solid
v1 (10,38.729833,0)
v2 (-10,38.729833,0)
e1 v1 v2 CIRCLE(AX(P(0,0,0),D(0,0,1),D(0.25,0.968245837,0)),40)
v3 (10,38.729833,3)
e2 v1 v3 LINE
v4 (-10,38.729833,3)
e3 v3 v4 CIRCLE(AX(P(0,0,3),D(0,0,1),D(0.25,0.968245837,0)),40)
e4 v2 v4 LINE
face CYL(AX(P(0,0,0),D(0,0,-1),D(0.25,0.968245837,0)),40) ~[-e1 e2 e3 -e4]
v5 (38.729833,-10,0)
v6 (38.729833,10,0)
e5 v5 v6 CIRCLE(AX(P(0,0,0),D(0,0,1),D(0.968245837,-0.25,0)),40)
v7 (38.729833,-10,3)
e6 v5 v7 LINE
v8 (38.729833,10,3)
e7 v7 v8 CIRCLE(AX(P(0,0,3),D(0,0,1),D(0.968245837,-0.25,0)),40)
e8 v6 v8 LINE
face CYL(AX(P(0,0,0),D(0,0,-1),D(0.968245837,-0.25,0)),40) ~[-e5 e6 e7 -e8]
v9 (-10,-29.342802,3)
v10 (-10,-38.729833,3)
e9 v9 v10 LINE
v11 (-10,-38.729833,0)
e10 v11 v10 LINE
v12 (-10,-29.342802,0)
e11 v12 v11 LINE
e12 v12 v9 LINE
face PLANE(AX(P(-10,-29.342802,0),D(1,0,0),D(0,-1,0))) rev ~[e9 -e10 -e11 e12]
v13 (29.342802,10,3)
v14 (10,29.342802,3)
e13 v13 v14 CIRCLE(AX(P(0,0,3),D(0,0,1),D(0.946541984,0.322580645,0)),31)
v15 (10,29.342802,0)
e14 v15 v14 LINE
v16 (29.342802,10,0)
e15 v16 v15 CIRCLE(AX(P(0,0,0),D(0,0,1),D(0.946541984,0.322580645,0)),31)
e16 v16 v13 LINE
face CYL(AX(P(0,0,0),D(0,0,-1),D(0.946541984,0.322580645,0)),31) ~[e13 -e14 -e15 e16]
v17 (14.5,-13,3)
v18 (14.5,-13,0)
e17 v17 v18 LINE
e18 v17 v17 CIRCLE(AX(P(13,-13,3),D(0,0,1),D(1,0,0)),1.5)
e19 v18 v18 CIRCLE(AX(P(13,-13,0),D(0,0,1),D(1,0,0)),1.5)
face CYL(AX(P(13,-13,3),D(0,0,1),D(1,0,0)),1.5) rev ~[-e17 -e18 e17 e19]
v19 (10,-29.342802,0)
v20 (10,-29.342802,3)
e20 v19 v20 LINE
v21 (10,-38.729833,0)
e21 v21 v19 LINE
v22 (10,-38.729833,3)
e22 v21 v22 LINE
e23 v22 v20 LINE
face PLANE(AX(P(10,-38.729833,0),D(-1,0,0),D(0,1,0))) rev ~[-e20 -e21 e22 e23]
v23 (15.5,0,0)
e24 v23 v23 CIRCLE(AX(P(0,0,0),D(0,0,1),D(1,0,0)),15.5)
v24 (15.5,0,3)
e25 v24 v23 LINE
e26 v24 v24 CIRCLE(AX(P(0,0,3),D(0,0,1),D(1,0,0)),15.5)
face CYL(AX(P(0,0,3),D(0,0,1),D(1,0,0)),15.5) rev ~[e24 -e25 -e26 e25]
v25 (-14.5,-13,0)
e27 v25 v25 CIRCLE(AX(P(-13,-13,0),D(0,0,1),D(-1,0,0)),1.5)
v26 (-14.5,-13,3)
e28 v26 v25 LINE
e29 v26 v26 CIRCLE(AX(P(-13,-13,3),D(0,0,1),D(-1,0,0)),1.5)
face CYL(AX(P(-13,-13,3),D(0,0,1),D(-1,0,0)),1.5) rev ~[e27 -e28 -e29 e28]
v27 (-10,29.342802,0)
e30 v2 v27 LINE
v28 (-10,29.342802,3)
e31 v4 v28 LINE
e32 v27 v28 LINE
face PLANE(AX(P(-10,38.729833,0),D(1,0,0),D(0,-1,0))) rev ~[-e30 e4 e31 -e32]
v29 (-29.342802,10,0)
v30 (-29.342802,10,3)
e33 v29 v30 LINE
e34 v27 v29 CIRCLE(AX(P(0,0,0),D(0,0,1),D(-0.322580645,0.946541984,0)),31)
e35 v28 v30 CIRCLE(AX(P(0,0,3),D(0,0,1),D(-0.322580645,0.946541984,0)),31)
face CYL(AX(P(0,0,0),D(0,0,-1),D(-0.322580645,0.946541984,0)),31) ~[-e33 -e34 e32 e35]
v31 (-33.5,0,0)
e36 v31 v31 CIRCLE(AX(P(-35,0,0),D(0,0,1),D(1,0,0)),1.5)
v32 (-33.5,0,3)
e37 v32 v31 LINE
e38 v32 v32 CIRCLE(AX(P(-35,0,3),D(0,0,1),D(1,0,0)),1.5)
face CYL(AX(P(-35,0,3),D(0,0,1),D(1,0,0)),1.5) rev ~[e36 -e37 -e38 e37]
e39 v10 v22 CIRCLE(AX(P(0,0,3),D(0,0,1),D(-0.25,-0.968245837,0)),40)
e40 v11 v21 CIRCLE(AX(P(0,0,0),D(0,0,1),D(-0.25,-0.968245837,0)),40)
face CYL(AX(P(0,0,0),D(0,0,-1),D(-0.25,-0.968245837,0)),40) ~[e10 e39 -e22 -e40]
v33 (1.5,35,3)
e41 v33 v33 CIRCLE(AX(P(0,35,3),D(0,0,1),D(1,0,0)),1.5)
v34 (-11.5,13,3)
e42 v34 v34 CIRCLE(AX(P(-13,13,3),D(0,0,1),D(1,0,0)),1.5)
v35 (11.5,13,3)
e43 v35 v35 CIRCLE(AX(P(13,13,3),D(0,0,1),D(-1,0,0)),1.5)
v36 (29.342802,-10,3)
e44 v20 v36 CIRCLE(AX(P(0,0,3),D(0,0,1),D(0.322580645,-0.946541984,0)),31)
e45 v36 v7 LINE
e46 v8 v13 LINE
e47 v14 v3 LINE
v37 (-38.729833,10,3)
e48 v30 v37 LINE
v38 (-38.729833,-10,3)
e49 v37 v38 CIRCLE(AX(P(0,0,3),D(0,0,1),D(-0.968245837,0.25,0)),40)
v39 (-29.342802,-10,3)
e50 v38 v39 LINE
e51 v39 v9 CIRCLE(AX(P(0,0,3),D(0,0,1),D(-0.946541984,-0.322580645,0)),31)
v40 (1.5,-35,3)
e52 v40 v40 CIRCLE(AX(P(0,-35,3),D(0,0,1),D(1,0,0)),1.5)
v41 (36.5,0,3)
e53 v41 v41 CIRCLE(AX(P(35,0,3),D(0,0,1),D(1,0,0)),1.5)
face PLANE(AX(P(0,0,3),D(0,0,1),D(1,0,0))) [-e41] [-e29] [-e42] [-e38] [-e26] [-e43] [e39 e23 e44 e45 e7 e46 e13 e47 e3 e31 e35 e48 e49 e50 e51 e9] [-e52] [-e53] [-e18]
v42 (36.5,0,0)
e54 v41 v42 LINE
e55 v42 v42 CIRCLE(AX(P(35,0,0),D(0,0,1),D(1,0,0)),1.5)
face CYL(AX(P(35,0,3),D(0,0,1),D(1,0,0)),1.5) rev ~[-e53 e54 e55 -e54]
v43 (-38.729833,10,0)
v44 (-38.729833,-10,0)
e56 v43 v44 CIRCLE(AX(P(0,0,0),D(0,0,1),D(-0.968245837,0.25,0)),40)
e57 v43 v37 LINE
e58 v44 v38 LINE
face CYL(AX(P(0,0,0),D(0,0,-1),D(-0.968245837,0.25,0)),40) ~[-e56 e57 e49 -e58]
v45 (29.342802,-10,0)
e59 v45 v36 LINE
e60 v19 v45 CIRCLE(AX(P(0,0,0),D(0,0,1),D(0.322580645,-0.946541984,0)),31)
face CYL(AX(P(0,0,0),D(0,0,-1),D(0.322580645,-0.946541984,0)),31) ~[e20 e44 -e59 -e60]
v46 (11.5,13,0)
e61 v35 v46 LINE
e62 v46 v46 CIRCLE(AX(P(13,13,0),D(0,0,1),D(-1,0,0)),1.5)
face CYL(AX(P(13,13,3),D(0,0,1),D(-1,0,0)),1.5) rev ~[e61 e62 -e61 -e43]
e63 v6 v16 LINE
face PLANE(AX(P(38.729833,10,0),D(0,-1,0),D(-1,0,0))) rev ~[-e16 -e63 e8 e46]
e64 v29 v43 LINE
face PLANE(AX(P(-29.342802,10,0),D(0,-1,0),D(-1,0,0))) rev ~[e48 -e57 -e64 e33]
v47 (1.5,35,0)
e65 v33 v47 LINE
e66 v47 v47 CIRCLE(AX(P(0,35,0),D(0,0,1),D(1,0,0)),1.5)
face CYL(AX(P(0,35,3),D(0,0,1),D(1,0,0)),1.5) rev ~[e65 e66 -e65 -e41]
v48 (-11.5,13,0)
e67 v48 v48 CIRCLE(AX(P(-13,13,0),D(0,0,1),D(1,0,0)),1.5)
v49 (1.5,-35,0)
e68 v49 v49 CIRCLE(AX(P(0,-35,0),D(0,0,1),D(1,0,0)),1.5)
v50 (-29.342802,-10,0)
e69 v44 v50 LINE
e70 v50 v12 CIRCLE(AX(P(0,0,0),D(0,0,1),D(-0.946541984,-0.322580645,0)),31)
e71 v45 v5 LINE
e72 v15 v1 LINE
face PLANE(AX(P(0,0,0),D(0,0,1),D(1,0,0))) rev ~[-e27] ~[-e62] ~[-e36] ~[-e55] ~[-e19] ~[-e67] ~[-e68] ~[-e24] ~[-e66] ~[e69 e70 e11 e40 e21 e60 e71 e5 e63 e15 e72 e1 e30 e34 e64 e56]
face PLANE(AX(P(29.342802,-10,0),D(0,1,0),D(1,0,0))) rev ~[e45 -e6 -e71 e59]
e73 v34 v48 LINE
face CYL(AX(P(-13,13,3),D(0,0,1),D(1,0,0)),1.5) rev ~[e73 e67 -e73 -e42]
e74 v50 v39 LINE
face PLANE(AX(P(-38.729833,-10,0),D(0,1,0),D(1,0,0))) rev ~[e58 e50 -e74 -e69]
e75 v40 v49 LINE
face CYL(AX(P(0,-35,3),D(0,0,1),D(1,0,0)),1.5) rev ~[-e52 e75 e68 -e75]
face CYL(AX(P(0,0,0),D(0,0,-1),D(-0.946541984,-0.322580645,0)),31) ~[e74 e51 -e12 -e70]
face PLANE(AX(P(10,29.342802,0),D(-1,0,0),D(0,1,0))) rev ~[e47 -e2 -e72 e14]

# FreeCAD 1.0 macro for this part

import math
import FreeCAD as App
import Part
import Sketcher
Q = App.Units.Quantity

doc = App.newDocument("Part")
body = doc.addObject("PartDesign::Body", "Body")

sketch1 = body.newObject("Sketcher::SketchObject", "Sketch")
sketch1.AttachmentSupport = (doc.getObject("XY_Plane"), [""])
sketch1.MapMode = "FlatFace"
sketch1.addGeometry([
    Part.LineSegment(App.Vector(-10, -29, 0), App.Vector(-10, -39, 0)),
    Part.ArcOfCircle(Part.Circle(App.Vector(0, 0, 0), App.Vector(0, 0, 1), 40), math.radians(-104), math.radians(-76)),
    Part.LineSegment(App.Vector(10, -39, 0), App.Vector(10, -29, 0)),
    Part.ArcOfCircle(Part.Circle(App.Vector(0, 0, 0), App.Vector(0, 0, 1), 31), math.radians(-71), math.radians(-19)),
    Part.LineSegment(App.Vector(29, -10, 0), App.Vector(39, -10, 0)),
    Part.ArcOfCircle(Part.Circle(App.Vector(0, 0, 0), App.Vector(0, 0, 1), 40), math.radians(-14), math.radians(14)),
    Part.LineSegment(App.Vector(39, 10, 0), App.Vector(29, 10, 0)),
    Part.ArcOfCircle(Part.Circle(App.Vector(0, 0, 0), App.Vector(0, 0, 1), 31), math.radians(19), math.radians(71)),
    Part.LineSegment(App.Vector(10, 29, 0), App.Vector(10, 39, 0)),
    Part.ArcOfCircle(Part.Circle(App.Vector(0, 0, 0), App.Vector(0, 0, 1), 40), math.radians(76), math.radians(104)),
    Part.LineSegment(App.Vector(-10, 39, 0), App.Vector(-10, 29, 0)),
    Part.ArcOfCircle(Part.Circle(App.Vector(0, 0, 0), App.Vector(0, 0, 1), 31), math.radians(109), math.radians(161)),
    Part.LineSegment(App.Vector(-29, 10, 0), App.Vector(-39, 10, 0)),
    Part.ArcOfCircle(Part.Circle(App.Vector(0, 0, 0), App.Vector(0, 0, 1), 40), math.radians(166), math.radians(194)),
    Part.LineSegment(App.Vector(-39, -10, 0), App.Vector(-29, -10, 0)),
    Part.ArcOfCircle(Part.Circle(App.Vector(0, 0, 0), App.Vector(0, 0, 1), 31), math.radians(-161), math.radians(-109)),
], False)
sketch1.addConstraint([
    Sketcher.Constraint("Coincident", 0, 2, 1, 1),
    Sketcher.Constraint("Coincident", 1, 2, 2, 1),
    Sketcher.Constraint("Coincident", 2, 2, 3, 1),
    Sketcher.Constraint("Coincident", 3, 2, 4, 1),
    Sketcher.Constraint("Coincident", 4, 2, 5, 1),
    Sketcher.Constraint("Coincident", 5, 2, 6, 1),
    Sketcher.Constraint("Coincident", 6, 2, 7, 1),
    Sketcher.Constraint("Coincident", 7, 2, 8, 1),
    Sketcher.Constraint("Coincident", 8, 2, 9, 1),
    Sketcher.Constraint("Coincident", 9, 2, 10, 1),
    Sketcher.Constraint("Coincident", 10, 2, 11, 1),
    Sketcher.Constraint("Coincident", 11, 2, 12, 1),
    Sketcher.Constraint("Coincident", 12, 2, 13, 1),
    Sketcher.Constraint("Coincident", 13, 2, 14, 1),
    Sketcher.Constraint("Coincident", 14, 2, 15, 1),
    Sketcher.Constraint("Coincident", 15, 2, 0, 1),
    Sketcher.Constraint("Vertical", 0),
    Sketcher.Constraint("Vertical", 2),
    Sketcher.Constraint("Horizontal", 4),
    Sketcher.Constraint("Horizontal", 6),
    Sketcher.Constraint("Vertical", 8),
    Sketcher.Constraint("Vertical", 10),
    Sketcher.Constraint("Horizontal", 12),
    Sketcher.Constraint("Horizontal", 14),
    Sketcher.Constraint("Coincident", 1, 3, -1, 1),
    Sketcher.Constraint("Coincident", 3, 3, -1, 1),
    Sketcher.Constraint("Coincident", 5, 3, -1, 1),
    Sketcher.Constraint("Coincident", 7, 3, -1, 1),
    Sketcher.Constraint("Coincident", 9, 3, -1, 1),
    Sketcher.Constraint("Coincident", 11, 3, -1, 1),
    Sketcher.Constraint("Coincident", 13, 3, -1, 1),
    Sketcher.Constraint("Coincident", 15, 3, -1, 1),
    Sketcher.Constraint("Equal", 1, 5),
    Sketcher.Constraint("Equal", 3, 7),
    Sketcher.Constraint("Equal", 5, 9),
    Sketcher.Constraint("Equal", 7, 11),
    Sketcher.Constraint("Equal", 9, 13),
    Sketcher.Constraint("Equal", 11, 15),
    Sketcher.Constraint("Horizontal", 0, 2, 1, 2),
    Sketcher.Constraint("Horizontal", 8, 2, 9, 2),
    Sketcher.Constraint("Horizontal", 6, 2, 11, 2),
    Sketcher.Constraint("Horizontal", 4, 2, 13, 2),
    Sketcher.Constraint("Vertical", 4, 2, 5, 2),
    Sketcher.Constraint("Vertical", 2, 2, 7, 2),
    Sketcher.Constraint("Equal", 14, 0),
    Sketcher.Constraint("Radius", 1, Q("40 mm")),
    Sketcher.Constraint("Radius", 3, Q("31 mm")),
    Sketcher.Constraint("DistanceX", 0, 2, -1, 1, Q("10 mm")),
])
pad1 = body.newObject("PartDesign::Pad", "Pad")
pad1.Profile = sketch1
pad1.Length = 3

sketch2 = body.newObject("Sketcher::SketchObject", "Sketch001")
sketch2.AttachmentSupport = (doc.getObject("XY_Plane"), [""])
sketch2.MapMode = "FlatFace"
sketch2.AttachmentOffset = App.Placement(App.Vector(0, 0, 3), App.Rotation())
sketch2.addGeometry(Part.Circle(App.Vector(0, 35, 0), App.Vector(0, 0, 1), 1.5), False)
sketch2.addConstraint([
    Sketcher.Constraint("PointOnObject", 0, 3, -2),
    Sketcher.Constraint("Diameter", 0, Q("3 mm")),
    Sketcher.Constraint("DistanceY", -1, 1, 0, 3, Q("35 mm")),
])
pocket1 = body.newObject("PartDesign::Pocket", "Pocket")
pocket1.Profile = sketch2
pocket1.Type = "UpToFirst"

sketch3 = body.newObject("Sketcher::SketchObject", "Sketch002")
sketch3.AttachmentSupport = (doc.getObject("XY_Plane"), [""])
sketch3.MapMode = "FlatFace"
sketch3.AttachmentOffset = App.Placement(App.Vector(0, 0, 3), App.Rotation())
sketch3.addGeometry(Part.Circle(App.Vector(35, 0, 0), App.Vector(0, 0, 1), 1.5), False)
sketch3.addConstraint([
    Sketcher.Constraint("PointOnObject", 0, 3, -1),
    Sketcher.Constraint("Diameter", 0, Q("3 mm")),
    Sketcher.Constraint("DistanceX", -1, 1, 0, 3, Q("35 mm")),
])
pocket2 = body.newObject("PartDesign::Pocket", "Pocket001")
pocket2.Profile = sketch3
pocket2.Type = "UpToFirst"

sketch4 = body.newObject("Sketcher::SketchObject", "Sketch003")
sketch4.AttachmentSupport = (doc.getObject("XY_Plane"), [""])
sketch4.MapMode = "FlatFace"
sketch4.AttachmentOffset = App.Placement(App.Vector(0, 0, 3), App.Rotation())
sketch4.addGeometry(Part.Circle(App.Vector(0, -35, 0), App.Vector(0, 0, 1), 1.5), False)
sketch4.addConstraint([
    Sketcher.Constraint("PointOnObject", 0, 3, -2),
    Sketcher.Constraint("Diameter", 0, Q("3 mm")),
    Sketcher.Constraint("DistanceY", 0, 3, -1, 1, Q("35 mm")),
])
pocket3 = body.newObject("PartDesign::Pocket", "Pocket002")
pocket3.Profile = sketch4
pocket3.Type = "UpToFirst"

sketch5 = body.newObject("Sketcher::SketchObject", "Sketch004")
sketch5.AttachmentSupport = (doc.getObject("XY_Plane"), [""])
sketch5.MapMode = "FlatFace"
sketch5.AttachmentOffset = App.Placement(App.Vector(0, 0, 3), App.Rotation())
sketch5.addGeometry(Part.Circle(App.Vector(-35, 0, 0), App.Vector(0, 0, 1), 1.5), False)
sketch5.addConstraint([
    Sketcher.Constraint("PointOnObject", 0, 3, -1),
    Sketcher.Constraint("Diameter", 0, Q("3 mm")),
    Sketcher.Constraint("DistanceX", 0, 3, -1, 1, Q("35 mm")),
])
pocket4 = body.newObject("PartDesign::Pocket", "Pocket003")
pocket4.Profile = sketch5
pocket4.Type = "UpToFirst"

sketch6 = body.newObject("Sketcher::SketchObject", "Sketch005")
sketch6.AttachmentSupport = (doc.getObject("XY_Plane"), [""])
sketch6.MapMode = "FlatFace"
sketch6.AttachmentOffset = App.Placement(App.Vector(0, 0, 3), App.Rotation())
sketch6.addGeometry([
    Part.Circle(App.Vector(0, 0, 0), App.Vector(0, 0, 1), 15.5),
    Part.Circle(App.Vector(-13, 13, 0), App.Vector(0, 0, 1), 1.5),
    Part.Circle(App.Vector(-13, -13, 0), App.Vector(0, 0, 1), 1.5),
    Part.Circle(App.Vector(13, -13, 0), App.Vector(0, 0, 1), 1.5),
    Part.Circle(App.Vector(13, 13, 0), App.Vector(0, 0, 1), 1.5),
], False)
sketch6.addConstraint([
    Sketcher.Constraint("Coincident", 0, 3, -1, 1),
    Sketcher.Constraint("Equal", 1, 2),
    Sketcher.Constraint("Equal", 2, 3),
    Sketcher.Constraint("Equal", 3, 4),
    Sketcher.Constraint("Symmetric", 1, 3, 3, 3, -1, 1),
    Sketcher.Constraint("Symmetric", 2, 3, 4, 3, -1, 1),
    Sketcher.Constraint("Symmetric", 2, 3, 3, 3, -2),
    Sketcher.Constraint("Diameter", 0, Q("31 mm")),
    Sketcher.Constraint("Diameter", 1, Q("3 mm")),
    Sketcher.Constraint("DistanceX", 1, 3, -1, 1, Q("13 mm")),
    Sketcher.Constraint("DistanceY", -1, 1, 1, 3, Q("13 mm")),
])
pocket5 = body.newObject("PartDesign::Pocket", "Pocket004")
pocket5.Profile = sketch6
pocket5.Length = 3

doc.recompute()
